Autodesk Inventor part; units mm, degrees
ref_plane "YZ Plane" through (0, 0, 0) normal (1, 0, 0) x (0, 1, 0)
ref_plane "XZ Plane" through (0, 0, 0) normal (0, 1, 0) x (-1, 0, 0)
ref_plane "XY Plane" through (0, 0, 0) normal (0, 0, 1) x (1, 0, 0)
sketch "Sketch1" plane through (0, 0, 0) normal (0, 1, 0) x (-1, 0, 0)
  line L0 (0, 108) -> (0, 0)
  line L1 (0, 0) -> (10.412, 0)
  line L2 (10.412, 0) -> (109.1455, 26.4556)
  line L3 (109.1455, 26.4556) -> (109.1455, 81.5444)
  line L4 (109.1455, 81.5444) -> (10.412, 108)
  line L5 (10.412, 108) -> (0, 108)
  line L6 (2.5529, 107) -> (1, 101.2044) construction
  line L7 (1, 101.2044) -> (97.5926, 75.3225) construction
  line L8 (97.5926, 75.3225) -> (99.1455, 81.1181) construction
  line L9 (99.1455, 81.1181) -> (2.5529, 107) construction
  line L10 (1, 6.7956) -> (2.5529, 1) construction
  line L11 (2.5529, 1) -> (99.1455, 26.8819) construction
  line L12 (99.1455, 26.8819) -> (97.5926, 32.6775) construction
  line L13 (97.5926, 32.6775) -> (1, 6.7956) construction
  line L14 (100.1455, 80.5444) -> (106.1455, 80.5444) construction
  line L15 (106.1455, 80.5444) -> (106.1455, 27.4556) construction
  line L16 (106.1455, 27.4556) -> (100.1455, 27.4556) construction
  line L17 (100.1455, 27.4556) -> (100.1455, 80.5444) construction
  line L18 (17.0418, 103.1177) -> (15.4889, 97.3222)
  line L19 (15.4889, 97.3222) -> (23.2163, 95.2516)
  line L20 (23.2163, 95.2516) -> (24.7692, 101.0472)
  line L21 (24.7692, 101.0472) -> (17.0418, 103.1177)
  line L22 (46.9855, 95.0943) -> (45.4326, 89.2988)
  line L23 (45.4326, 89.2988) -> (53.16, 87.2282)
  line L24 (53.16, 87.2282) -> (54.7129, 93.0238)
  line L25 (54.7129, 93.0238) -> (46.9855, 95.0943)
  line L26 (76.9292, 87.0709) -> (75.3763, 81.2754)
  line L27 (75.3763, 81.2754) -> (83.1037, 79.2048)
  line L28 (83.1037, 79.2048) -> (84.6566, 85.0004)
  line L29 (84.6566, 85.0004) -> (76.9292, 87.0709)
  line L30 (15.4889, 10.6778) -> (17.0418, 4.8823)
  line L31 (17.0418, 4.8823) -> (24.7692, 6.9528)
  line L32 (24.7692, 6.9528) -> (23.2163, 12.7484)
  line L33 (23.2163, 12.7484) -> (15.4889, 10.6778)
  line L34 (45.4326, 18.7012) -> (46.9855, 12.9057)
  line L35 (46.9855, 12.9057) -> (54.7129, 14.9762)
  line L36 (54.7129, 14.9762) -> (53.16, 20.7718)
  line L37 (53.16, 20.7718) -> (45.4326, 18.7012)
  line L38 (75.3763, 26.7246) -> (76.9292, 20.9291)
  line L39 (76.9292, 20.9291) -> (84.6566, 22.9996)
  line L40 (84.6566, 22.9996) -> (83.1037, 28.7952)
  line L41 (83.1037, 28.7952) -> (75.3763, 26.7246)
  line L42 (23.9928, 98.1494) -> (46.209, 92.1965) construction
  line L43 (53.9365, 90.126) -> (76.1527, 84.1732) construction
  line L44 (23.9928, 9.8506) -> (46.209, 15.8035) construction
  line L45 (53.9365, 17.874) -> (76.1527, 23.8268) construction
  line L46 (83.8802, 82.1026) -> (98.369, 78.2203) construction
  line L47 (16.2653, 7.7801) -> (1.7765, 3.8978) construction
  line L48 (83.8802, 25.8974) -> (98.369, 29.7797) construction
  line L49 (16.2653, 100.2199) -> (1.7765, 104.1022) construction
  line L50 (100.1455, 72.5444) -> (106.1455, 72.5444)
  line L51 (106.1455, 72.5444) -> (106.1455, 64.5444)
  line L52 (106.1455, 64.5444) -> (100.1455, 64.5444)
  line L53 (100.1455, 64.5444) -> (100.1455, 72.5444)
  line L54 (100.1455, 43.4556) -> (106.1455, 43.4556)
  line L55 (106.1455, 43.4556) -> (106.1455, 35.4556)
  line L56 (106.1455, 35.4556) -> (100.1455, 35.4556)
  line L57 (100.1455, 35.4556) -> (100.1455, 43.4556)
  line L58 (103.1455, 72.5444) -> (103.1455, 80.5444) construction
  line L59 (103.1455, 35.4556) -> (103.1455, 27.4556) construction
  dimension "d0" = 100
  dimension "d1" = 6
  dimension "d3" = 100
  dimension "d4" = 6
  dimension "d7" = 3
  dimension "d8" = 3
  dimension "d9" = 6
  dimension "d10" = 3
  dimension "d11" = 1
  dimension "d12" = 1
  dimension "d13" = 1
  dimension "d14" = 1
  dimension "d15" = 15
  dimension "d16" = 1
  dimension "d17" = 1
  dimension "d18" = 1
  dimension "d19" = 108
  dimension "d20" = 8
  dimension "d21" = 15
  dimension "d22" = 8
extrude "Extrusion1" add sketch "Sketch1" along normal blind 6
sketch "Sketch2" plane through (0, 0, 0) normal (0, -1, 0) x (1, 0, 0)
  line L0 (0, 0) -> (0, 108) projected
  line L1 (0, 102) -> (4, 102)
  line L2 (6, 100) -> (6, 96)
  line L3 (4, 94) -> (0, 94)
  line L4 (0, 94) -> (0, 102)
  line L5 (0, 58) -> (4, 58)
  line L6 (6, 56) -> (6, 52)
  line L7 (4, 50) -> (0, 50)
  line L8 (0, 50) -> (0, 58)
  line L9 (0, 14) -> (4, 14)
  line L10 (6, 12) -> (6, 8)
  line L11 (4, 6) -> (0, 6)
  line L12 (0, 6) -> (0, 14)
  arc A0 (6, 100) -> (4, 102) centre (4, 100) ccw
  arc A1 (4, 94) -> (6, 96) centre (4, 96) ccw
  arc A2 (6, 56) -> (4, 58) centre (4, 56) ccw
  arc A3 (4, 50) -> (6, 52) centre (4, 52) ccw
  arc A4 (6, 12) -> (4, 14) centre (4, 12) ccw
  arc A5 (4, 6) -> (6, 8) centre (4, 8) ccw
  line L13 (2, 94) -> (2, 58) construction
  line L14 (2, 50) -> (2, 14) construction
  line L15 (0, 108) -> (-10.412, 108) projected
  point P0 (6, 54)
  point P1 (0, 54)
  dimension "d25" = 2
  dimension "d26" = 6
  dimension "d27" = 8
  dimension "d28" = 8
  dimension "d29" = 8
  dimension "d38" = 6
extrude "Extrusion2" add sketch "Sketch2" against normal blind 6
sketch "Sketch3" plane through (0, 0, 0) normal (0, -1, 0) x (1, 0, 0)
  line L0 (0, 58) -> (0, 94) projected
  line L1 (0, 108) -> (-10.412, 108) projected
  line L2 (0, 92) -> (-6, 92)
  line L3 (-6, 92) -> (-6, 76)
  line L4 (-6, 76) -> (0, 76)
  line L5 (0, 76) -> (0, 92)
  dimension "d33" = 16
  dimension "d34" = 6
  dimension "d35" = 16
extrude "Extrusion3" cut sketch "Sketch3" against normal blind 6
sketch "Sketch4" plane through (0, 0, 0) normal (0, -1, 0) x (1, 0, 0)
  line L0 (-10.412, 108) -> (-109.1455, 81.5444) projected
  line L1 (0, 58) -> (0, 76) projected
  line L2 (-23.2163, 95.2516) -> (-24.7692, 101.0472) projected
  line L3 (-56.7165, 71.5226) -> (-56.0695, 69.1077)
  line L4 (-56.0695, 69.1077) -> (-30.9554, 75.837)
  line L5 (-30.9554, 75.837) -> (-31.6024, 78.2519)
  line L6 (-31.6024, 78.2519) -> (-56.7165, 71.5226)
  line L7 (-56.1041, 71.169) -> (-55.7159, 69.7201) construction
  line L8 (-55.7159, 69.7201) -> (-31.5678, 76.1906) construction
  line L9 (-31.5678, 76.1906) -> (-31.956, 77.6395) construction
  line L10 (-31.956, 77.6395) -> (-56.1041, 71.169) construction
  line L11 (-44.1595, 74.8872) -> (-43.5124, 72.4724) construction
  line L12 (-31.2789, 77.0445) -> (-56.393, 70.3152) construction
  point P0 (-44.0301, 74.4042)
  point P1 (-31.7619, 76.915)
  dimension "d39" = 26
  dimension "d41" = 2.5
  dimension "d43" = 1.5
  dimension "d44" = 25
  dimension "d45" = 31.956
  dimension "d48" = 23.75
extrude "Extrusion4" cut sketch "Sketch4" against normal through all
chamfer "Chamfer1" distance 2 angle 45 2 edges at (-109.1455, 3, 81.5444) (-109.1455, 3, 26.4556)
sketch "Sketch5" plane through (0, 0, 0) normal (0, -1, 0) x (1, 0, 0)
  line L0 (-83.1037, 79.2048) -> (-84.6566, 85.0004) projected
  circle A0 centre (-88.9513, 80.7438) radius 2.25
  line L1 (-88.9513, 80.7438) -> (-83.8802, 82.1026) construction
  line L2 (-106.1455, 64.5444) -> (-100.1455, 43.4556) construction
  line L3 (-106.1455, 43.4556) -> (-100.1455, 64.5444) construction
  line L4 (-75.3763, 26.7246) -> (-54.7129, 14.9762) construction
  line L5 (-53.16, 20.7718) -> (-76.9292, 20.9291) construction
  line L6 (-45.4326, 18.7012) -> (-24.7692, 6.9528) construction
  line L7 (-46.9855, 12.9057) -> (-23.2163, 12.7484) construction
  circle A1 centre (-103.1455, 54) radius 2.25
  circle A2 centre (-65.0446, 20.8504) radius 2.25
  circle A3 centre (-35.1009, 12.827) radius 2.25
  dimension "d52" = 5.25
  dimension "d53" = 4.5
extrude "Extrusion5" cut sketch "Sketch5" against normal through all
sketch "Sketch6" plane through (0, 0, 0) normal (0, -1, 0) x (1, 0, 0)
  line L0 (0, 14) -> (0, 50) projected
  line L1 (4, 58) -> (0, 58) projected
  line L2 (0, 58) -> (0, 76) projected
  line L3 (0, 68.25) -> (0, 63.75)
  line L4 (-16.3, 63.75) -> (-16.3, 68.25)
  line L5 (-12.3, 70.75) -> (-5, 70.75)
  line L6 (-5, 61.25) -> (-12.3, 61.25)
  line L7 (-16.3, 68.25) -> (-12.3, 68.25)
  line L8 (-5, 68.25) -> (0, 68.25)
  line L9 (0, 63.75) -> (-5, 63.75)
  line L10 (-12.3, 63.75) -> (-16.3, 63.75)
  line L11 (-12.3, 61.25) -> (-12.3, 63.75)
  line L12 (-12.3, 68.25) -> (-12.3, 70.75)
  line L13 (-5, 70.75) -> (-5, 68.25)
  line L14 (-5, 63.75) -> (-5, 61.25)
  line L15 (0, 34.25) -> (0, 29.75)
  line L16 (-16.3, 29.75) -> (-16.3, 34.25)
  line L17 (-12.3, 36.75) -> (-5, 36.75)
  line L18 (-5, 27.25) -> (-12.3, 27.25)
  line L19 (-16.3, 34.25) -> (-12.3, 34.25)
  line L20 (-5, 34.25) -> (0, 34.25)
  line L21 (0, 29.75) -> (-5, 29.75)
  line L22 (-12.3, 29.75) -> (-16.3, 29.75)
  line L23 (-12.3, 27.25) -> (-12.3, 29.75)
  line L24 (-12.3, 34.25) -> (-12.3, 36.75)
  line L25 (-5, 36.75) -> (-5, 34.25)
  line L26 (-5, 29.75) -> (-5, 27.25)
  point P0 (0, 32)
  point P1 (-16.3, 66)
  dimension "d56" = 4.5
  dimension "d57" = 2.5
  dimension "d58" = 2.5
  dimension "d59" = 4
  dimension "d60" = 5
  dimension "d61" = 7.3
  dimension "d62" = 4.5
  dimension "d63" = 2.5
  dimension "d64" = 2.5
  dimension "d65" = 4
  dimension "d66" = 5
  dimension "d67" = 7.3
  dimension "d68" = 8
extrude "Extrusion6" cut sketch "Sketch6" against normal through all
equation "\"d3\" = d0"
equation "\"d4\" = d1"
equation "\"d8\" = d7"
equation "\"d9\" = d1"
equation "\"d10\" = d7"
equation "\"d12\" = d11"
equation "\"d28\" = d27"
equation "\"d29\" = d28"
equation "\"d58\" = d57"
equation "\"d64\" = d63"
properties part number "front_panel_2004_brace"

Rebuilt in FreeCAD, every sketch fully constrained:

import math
import FreeCAD as App
import Part
import Sketcher

V = App.Vector
Q = App.Units.Quantity


def edges_at(feature, points):
    """Names of the edges that pass closest to the given points."""
    edges = feature.Shape.Edges
    near = lambda p: min(range(len(edges)), key=lambda i: edges[i].distToShape(Part.Vertex(*p))[0])
    return sorted({f"Edge{near(p) + 1}" for p in points})


def add_polygon(sketch, points):
    """Adds a closed chain of lines whose ends are joined by coincident constraints."""
    first, n = sketch.GeometryCount, len(points)
    for a, b in zip(points, points[1:] + points[:1]):
        sketch.addGeometry(Part.LineSegment(App.Vector(*a, 0), App.Vector(*b, 0)), False)
    for i in range(n):
        sketch.addConstraint(Sketcher.Constraint("Coincident", first + i, 2, first + (i + 1) % n, 1))

doc = App.newDocument("Part")
body = doc.addObject("PartDesign::Body", "Body")

sketch1 = body.newObject("Sketcher::SketchObject", "Sketch")
sketch1.AttachmentSupport = (doc.getObject("XZ_Plane"), [""])
sketch1.MapMode = "FlatFace"
add_polygon(sketch1, [(-10, 108), (0, 108), (0, 0), (-10, 0), (-109, 26), (-109, 82)])
add_polygon(sketch1, [(-17, 5), (-15, 11), (-23, 13), (-25, 7)])
add_polygon(sketch1, [(-47, 13), (-45, 19), (-53, 21), (-55, 15)])
add_polygon(sketch1, [(-77, 21), (-75, 27), (-83, 29), (-85, 23)])
add_polygon(sketch1, [(-100, 35), (-100, 43), (-106, 43), (-106, 35)])
add_polygon(sketch1, [(-15, 97), (-17, 103), (-25, 101), (-23, 95)])
add_polygon(sketch1, [(-45, 89), (-47, 95), (-55, 93), (-53, 87)])
add_polygon(sketch1, [(-100, 65), (-100, 73), (-106, 73), (-106, 65)])
add_polygon(sketch1, [(-75, 81), (-77, 87), (-85, 85), (-83, 79)])
sketch1.addConstraint([
    Sketcher.Constraint("Horizontal", 0),
    Sketcher.Constraint("Vertical", 1),
    Sketcher.Constraint("Horizontal", 2),
    Sketcher.Constraint("Vertical", 4),
    Sketcher.Constraint("Vertical", 18),
    Sketcher.Constraint("Horizontal", 19),
    Sketcher.Constraint("Vertical", 20),
    Sketcher.Constraint("Horizontal", 21),
    Sketcher.Constraint("Vertical", 30),
    Sketcher.Constraint("Horizontal", 31),
    Sketcher.Constraint("Vertical", 32),
    Sketcher.Constraint("Horizontal", 33),
    Sketcher.Constraint("Coincident", 1, 2, -1, 1),
    Sketcher.Constraint("Perpendicular", 3, 6),
    Sketcher.Constraint("Perpendicular", 6, 7),
    Sketcher.Constraint("Perpendicular", 7, 8),
    Sketcher.Constraint("Perpendicular", 8, 9),
    Sketcher.Constraint("Perpendicular", 9, 10),
    Sketcher.Constraint("Perpendicular", 10, 11),
    Sketcher.Constraint("Perpendicular", 11, 12),
    Sketcher.Constraint("Perpendicular", 12, 13),
    Sketcher.Constraint("Perpendicular", 13, 14),
    Sketcher.Constraint("Perpendicular", 14, 15),
    Sketcher.Constraint("Perpendicular", 15, 16),
    Sketcher.Constraint("Perpendicular", 16, 17),
    Sketcher.Constraint("Perpendicular", 5, 22),
    Sketcher.Constraint("Perpendicular", 22, 23),
    Sketcher.Constraint("Perpendicular", 23, 24),
    Sketcher.Constraint("Perpendicular", 24, 25),
    Sketcher.Constraint("Perpendicular", 25, 26),
    Sketcher.Constraint("Perpendicular", 26, 27),
    Sketcher.Constraint("Perpendicular", 27, 28),
    Sketcher.Constraint("Perpendicular", 28, 29),
    Sketcher.Constraint("Perpendicular", 29, 34),
    Sketcher.Constraint("Perpendicular", 34, 35),
    Sketcher.Constraint("Perpendicular", 35, 36),
    Sketcher.Constraint("Perpendicular", 36, 37),
    Sketcher.Constraint("Vertical", 2, 2, 5, 2),
    Sketcher.Constraint("Vertical", 9, 2, 22, 2),
    Sketcher.Constraint("Vertical", 8, 2, 23, 2),
    Sketcher.Constraint("Vertical", 7, 2, 24, 2),
    Sketcher.Constraint("Vertical", 13, 2, 26, 2),
    Sketcher.Constraint("Vertical", 12, 2, 27, 2),
    Sketcher.Constraint("Vertical", 11, 2, 28, 2),
    Sketcher.Constraint("Vertical", 21, 2, 30, 2),
    Sketcher.Constraint("Vertical", 20, 2, 31, 2),
    Sketcher.Constraint("Vertical", 17, 2, 34, 2),
    Sketcher.Constraint("Vertical", 16, 2, 35, 2),
    Sketcher.Constraint("Vertical", 15, 2, 36, 2),
    Sketcher.Constraint("Equal", 20, 30),
    Sketcher.Constraint("Equal", 3, 5),
    Sketcher.Constraint("Equal", 8, 10),
    Sketcher.Constraint("Equal", 9, 11),
    Sketcher.Constraint("Equal", 12, 14),
    Sketcher.Constraint("Equal", 13, 15),
    Sketcher.Constraint("DistanceX", 19, 2, 19, 1, Q("6 mm")),
    Sketcher.Constraint("DistanceY", 1, 2, 1, 1, Q("108 mm")),
    Sketcher.Constraint("DistanceY", 18, 1, 18, 2, Q("8 mm")),
    Sketcher.Constraint("Angle", 5, Q("15 deg")),
    Sketcher.Constraint("Distance", 6, Q("6 mm")),
    Sketcher.Constraint("Distance", 7, Q("8 mm")),
    Sketcher.Constraint("DistanceX", 3, 2, 19, 2, Q("3 mm")),
    Sketcher.Constraint("DistanceY", 3, 2, 18, 2, Q("17 mm")),
    Sketcher.Constraint("DistanceY", 30, 2, 4, 2, Q("9 mm")),
    Sketcher.Constraint("DistanceX", 0, 1, 0, 2, Q("10.412 mm")),
    Sketcher.Constraint("DistanceX", 11, 2, -1, 1, Q("53.16 mm")),
    Sketcher.Constraint("DistanceY", 4, 1, 4, 2, Q("55.0888 mm")),
    Sketcher.Constraint("DistanceX", 6, 2, -1, 1, Q("15.489 mm")),
    Sketcher.Constraint("DistanceY", -1, 1, 17, 2, Q("20.929 mm")),
    Sketcher.Constraint("DistanceY", -1, 1, 34, 2, Q("87.071 mm")),
    Sketcher.Constraint("DistanceY", 9, 2, 10, 2, Q("13.819 mm")),
    Sketcher.Constraint("DistanceY", 13, 2, 14, 2, Q("13.819 mm")),
    Sketcher.Constraint("DistanceX", 15, 2, 10, 2, Q("37.671 mm")),
    Sketcher.Constraint("DistanceY", 11, 2, 22, 2, Q("82.346 mm")),
    Sketcher.Constraint("DistanceY", 26, 2, 23, 2, Q("5.953 mm")),
])
pad1 = body.newObject("PartDesign::Pad", "Pad")
pad1.Profile = sketch1
pad1.Length = 6
pad1.Reversed = True

sketch2 = body.newObject("Sketcher::SketchObject", "Sketch001")
sketch2.AttachmentSupport = (doc.getObject("XZ_Plane"), [""])
sketch2.MapMode = "FlatFace"
sketch2.addGeometry([
    Part.LineSegment(V(0, 102, 0), V(0, 94, 0)),
    Part.LineSegment(V(0, 94, 0), V(4, 94, 0)),
    Part.ArcOfCircle(Part.Circle(V(4, 96, 0), V(0, 0, 1), 2), math.radians(-90), math.radians(0)),
    Part.LineSegment(V(6, 96, 0), V(6, 100, 0)),
    Part.ArcOfCircle(Part.Circle(V(4, 100, 0), V(0, 0, 1), 2), math.radians(0), math.radians(90)),
    Part.LineSegment(V(4, 102, 0), V(0, 102, 0)),
    Part.LineSegment(V(0, 58, 0), V(0, 50, 0)),
    Part.LineSegment(V(0, 50, 0), V(4, 50, 0)),
    Part.ArcOfCircle(Part.Circle(V(4, 52, 0), V(0, 0, 1), 2), math.radians(-90), math.radians(0)),
    Part.LineSegment(V(6, 52, 0), V(6, 56, 0)),
    Part.ArcOfCircle(Part.Circle(V(4, 56, 0), V(0, 0, 1), 2), math.radians(0), math.radians(90)),
    Part.LineSegment(V(4, 58, 0), V(0, 58, 0)),
    Part.LineSegment(V(0, 14, 0), V(0, 6, 0)),
    Part.LineSegment(V(0, 6, 0), V(4, 6, 0)),
    Part.ArcOfCircle(Part.Circle(V(4, 8, 0), V(0, 0, 1), 2), math.radians(-90), math.radians(0)),
    Part.LineSegment(V(6, 8, 0), V(6, 12, 0)),
    Part.ArcOfCircle(Part.Circle(V(4, 12, 0), V(0, 0, 1), 2), math.radians(0), math.radians(90)),
    Part.LineSegment(V(4, 14, 0), V(0, 14, 0)),
], False)
sketch2.addConstraint([
    Sketcher.Constraint("Coincident", 0, 2, 1, 1),
    Sketcher.Constraint("Tangent", 1, 2, 2, 1),
    Sketcher.Constraint("Tangent", 2, 2, 3, 1),
    Sketcher.Constraint("Tangent", 3, 2, 4, 1),
    Sketcher.Constraint("Tangent", 4, 2, 5, 1),
    Sketcher.Constraint("Coincident", 5, 2, 0, 1),
    Sketcher.Constraint("Coincident", 6, 2, 7, 1),
    Sketcher.Constraint("Tangent", 7, 2, 8, 1),
    Sketcher.Constraint("Tangent", 8, 2, 9, 1),
    Sketcher.Constraint("Tangent", 9, 2, 10, 1),
    Sketcher.Constraint("Tangent", 10, 2, 11, 1),
    Sketcher.Constraint("Coincident", 11, 2, 6, 1),
    Sketcher.Constraint("Coincident", 12, 2, 13, 1),
    Sketcher.Constraint("Tangent", 13, 2, 14, 1),
    Sketcher.Constraint("Tangent", 14, 2, 15, 1),
    Sketcher.Constraint("Tangent", 15, 2, 16, 1),
    Sketcher.Constraint("Tangent", 16, 2, 17, 1),
    Sketcher.Constraint("Coincident", 17, 2, 12, 1),
    Sketcher.Constraint("Vertical", 0),
    Sketcher.Constraint("Horizontal", 1),
    Sketcher.Constraint("Vertical", 3),
    Sketcher.Constraint("Horizontal", 5),
    Sketcher.Constraint("Vertical", 6),
    Sketcher.Constraint("Horizontal", 7),
    Sketcher.Constraint("Vertical", 9),
    Sketcher.Constraint("Horizontal", 11),
    Sketcher.Constraint("Vertical", 12),
    Sketcher.Constraint("Horizontal", 13),
    Sketcher.Constraint("Vertical", 15),
    Sketcher.Constraint("Horizontal", 17),
    Sketcher.Constraint("Equal", 2, 4),
    Sketcher.Constraint("Equal", 4, 8),
    Sketcher.Constraint("Equal", 8, 10),
    Sketcher.Constraint("Equal", 10, 14),
    Sketcher.Constraint("Equal", 14, 16),
    Sketcher.Constraint("PointOnObject", 0, 2, -2),
    Sketcher.Constraint("PointOnObject", 6, 2, -2),
    Sketcher.Constraint("PointOnObject", 12, 2, -2),
    Sketcher.Constraint("Vertical", 4, 3, 8, 3),
    Sketcher.Constraint("Vertical", 10, 3, 14, 3),
    Sketcher.Constraint("Equal", 17, 3),
    Sketcher.Constraint("Equal", 0, 6),
    Sketcher.Constraint("Equal", 6, 12),
    Sketcher.Constraint("Radius", 2, Q("2 mm")),
    Sketcher.Constraint("DistanceY", 0, 2, 0, 1, Q("8 mm")),
    Sketcher.Constraint("DistanceY", -1, 1, 14, 3, Q("8 mm")),
    Sketcher.Constraint("DistanceY", -1, 1, 2, 3, Q("96 mm")),
    Sketcher.Constraint("DistanceY", -1, 1, 8, 3, Q("52 mm")),
])
pad2 = body.newObject("PartDesign::Pad", "Pad001")
pad2.Profile = sketch2
pad2.Length = 6
pad2.Reversed = True

sketch3 = body.newObject("Sketcher::SketchObject", "Sketch002")
sketch3.AttachmentSupport = (doc.getObject("XZ_Plane"), [""])
sketch3.MapMode = "FlatFace"
add_polygon(sketch3, [(-6, 76), (0, 76), (0, 92), (-6, 92)])
sketch3.addConstraint([
    Sketcher.Constraint("Horizontal", 0),
    Sketcher.Constraint("Vertical", 1),
    Sketcher.Constraint("Horizontal", 2),
    Sketcher.Constraint("Vertical", 3),
    Sketcher.Constraint("PointOnObject", 0, 2, -2),
    Sketcher.Constraint("DistanceX", 0, 1, 0, 2, Q("6 mm")),
    Sketcher.Constraint("DistanceY", 1, 1, 1, 2, Q("16 mm")),
    Sketcher.Constraint("DistanceY", -1, 1, 0, 2, Q("76 mm")),
])
pocket1 = body.newObject("PartDesign::Pocket", "Pocket")
pocket1.Profile = sketch3
pocket1.Length = 6

sketch4 = body.newObject("Sketcher::SketchObject", "Sketch003")
sketch4.AttachmentSupport = (doc.getObject("XZ_Plane"), [""])
sketch4.MapMode = "FlatFace"
add_polygon(sketch4, [(-31.6, 78.3), (-56.7, 71.5), (-56.1, 69.1), (-31, 75.8)])
sketch4.addConstraint([
    Sketcher.Constraint("Perpendicular", 0, 1),
    Sketcher.Constraint("Perpendicular", 1, 2),
    Sketcher.Constraint("Perpendicular", 2, 3),
    Sketcher.Constraint("Distance", 0, Q("26 mm")),
    Sketcher.Constraint("Distance", 1, Q("2.5 mm")),
    Sketcher.Constraint("Angle", 0, Q("-165 deg")),
    Sketcher.Constraint("DistanceY", -1, 1, 2, 2, Q("75.837 mm")),
    Sketcher.Constraint("DistanceX", 0, 2, -1, 1, Q("56.7165 mm")),
])
pocket2 = body.newObject("PartDesign::Pocket", "Pocket001")
pocket2.Profile = sketch4
pocket2.Type = "ThroughAll"
doc.recompute()

chamfer = body.newObject("PartDesign::Chamfer", "Chamfer")
chamfer.Base = (pocket2, edges_at(pocket2, [(-109.145, 3, 81.544), (-109.145, 3, 26.456)]))
chamfer.Size = 2

sketch5 = body.newObject("Sketcher::SketchObject", "Sketch004")
sketch5.AttachmentSupport = (doc.getObject("XZ_Plane"), [""])
sketch5.MapMode = "FlatFace"
sketch5.addGeometry([
    Part.Circle(V(-89, 80.7, 0), V(0, 0, 1), 2.2),
    Part.Circle(V(-103.1, 54, 0), V(0, 0, 1), 2.2),
    Part.Circle(V(-65, 20.9, 0), V(0, 0, 1), 2.2),
    Part.Circle(V(-35.1, 12.8, 0), V(0, 0, 1), 2.2),
], False)
sketch5.addConstraint([
    Sketcher.Constraint("Equal", 0, 1),
    Sketcher.Constraint("Equal", 1, 2),
    Sketcher.Constraint("Equal", 2, 3),
    Sketcher.Constraint("Diameter", 0, Q("4.5 mm")),
    Sketcher.Constraint("DistanceY", -1, 1, 1, 3, Q("54 mm")),
    Sketcher.Constraint("DistanceX", 3, 3, -1, 1, Q("35.101 mm")),
    Sketcher.Constraint("DistanceY", -1, 1, 3, 3, Q("12.827 mm")),
    Sketcher.Constraint("DistanceX", 1, 3, 2, 3, Q("38.101 mm")),
    Sketcher.Constraint("DistanceX", 0, 3, -1, 1, Q("88.9513 mm")),
    Sketcher.Constraint("DistanceY", -1, 1, 0, 3, Q("80.7438 mm")),
    Sketcher.Constraint("DistanceX", 1, 3, -1, 1, Q("103.1455 mm")),
    Sketcher.Constraint("DistanceY", -1, 1, 2, 3, Q("20.8504 mm")),
])
pocket3 = body.newObject("PartDesign::Pocket", "Pocket002")
pocket3.Profile = sketch5
pocket3.Type = "ThroughAll"

sketch6 = body.newObject("Sketcher::SketchObject", "Sketch005")
sketch6.AttachmentSupport = (doc.getObject("XZ_Plane"), [""])
sketch6.MapMode = "FlatFace"
add_polygon(sketch6, [(-5, 29.8), (0, 29.8), (0, 34.2), (-5, 34.2), (-5, 36.8), (-12.3, 36.8), (-12.3, 34.2), (-16.3, 34.2), (-16.3, 29.8), (-12.3, 29.8), (-12.3, 27.2), (-5, 27.2)])
add_polygon(sketch6, [(-5, 63.8), (0, 63.8), (0, 68.2), (-5, 68.2), (-5, 70.8), (-12.3, 70.8), (-12.3, 68.2), (-16.3, 68.2), (-16.3, 63.8), (-12.3, 63.8), (-12.3, 61.2), (-5, 61.2)])
sketch6.addConstraint([
    Sketcher.Constraint("Horizontal", 0),
    Sketcher.Constraint("Vertical", 1),
    Sketcher.Constraint("Horizontal", 2),
    Sketcher.Constraint("Vertical", 3),
    Sketcher.Constraint("Horizontal", 4),
    Sketcher.Constraint("Vertical", 5),
    Sketcher.Constraint("Horizontal", 6),
    Sketcher.Constraint("Vertical", 7),
    Sketcher.Constraint("Horizontal", 8),
    Sketcher.Constraint("Vertical", 9),
    Sketcher.Constraint("Horizontal", 10),
    Sketcher.Constraint("Vertical", 11),
    Sketcher.Constraint("Horizontal", 12),
    Sketcher.Constraint("Vertical", 13),
    Sketcher.Constraint("Horizontal", 14),
    Sketcher.Constraint("Vertical", 15),
    Sketcher.Constraint("Horizontal", 16),
    Sketcher.Constraint("Vertical", 17),
    Sketcher.Constraint("Horizontal", 18),
    Sketcher.Constraint("Vertical", 19),
    Sketcher.Constraint("Horizontal", 20),
    Sketcher.Constraint("Vertical", 21),
    Sketcher.Constraint("Horizontal", 22),
    Sketcher.Constraint("Vertical", 23),
    Sketcher.Constraint("PointOnObject", 0, 2, -2),
    Sketcher.Constraint("PointOnObject", 12, 2, -2),
    Sketcher.Constraint("Horizontal", 2, 2, 5, 2),
    Sketcher.Constraint("Horizontal", 0, 2, 7, 2),
    Sketcher.Constraint("Horizontal", 14, 2, 17, 2),
    Sketcher.Constraint("Horizontal", 12, 2, 19, 2),
    Sketcher.Constraint("Vertical", 5, 2, 8, 2),
    Sketcher.Constraint("Vertical", 3, 2, 10, 2),
    Sketcher.Constraint("Vertical", 11, 2, 14, 2),
    Sketcher.Constraint("Vertical", 9, 2, 16, 2),
    Sketcher.Constraint("Vertical", 7, 2, 18, 2),
    Sketcher.Constraint("Vertical", 17, 2, 20, 2),
    Sketcher.Constraint("Vertical", 15, 2, 22, 2),
    Sketcher.Constraint("Equal", 5, 9),
    Sketcher.Constraint("Equal", 7, 13),
    Sketcher.Constraint("Equal", 11, 15),
    Sketcher.Constraint("Equal", 17, 21),
    Sketcher.Constraint("DistanceX", 0, 1, 0, 2, Q("5 mm")),
    Sketcher.Constraint("DistanceX", 6, 2, 6, 1, Q("4 mm")),
    Sketcher.Constraint("DistanceX", 4, 2, 4, 1, Q("7.3 mm")),
    Sketcher.Constraint("DistanceY", 1, 1, 1, 2, Q("4.5 mm")),
    Sketcher.Constraint("DistanceY", 3, 1, 3, 2, Q("2.5 mm")),
    Sketcher.Constraint("DistanceY", 3, 2, 12, 2, Q("27 mm")),
    Sketcher.Constraint("DistanceY", -1, 1, 0, 2, Q("29.75 mm")),
])
pocket4 = body.newObject("PartDesign::Pocket", "Pocket003")
pocket4.Profile = sketch6
pocket4.Type = "ThroughAll"

doc.recompute()
